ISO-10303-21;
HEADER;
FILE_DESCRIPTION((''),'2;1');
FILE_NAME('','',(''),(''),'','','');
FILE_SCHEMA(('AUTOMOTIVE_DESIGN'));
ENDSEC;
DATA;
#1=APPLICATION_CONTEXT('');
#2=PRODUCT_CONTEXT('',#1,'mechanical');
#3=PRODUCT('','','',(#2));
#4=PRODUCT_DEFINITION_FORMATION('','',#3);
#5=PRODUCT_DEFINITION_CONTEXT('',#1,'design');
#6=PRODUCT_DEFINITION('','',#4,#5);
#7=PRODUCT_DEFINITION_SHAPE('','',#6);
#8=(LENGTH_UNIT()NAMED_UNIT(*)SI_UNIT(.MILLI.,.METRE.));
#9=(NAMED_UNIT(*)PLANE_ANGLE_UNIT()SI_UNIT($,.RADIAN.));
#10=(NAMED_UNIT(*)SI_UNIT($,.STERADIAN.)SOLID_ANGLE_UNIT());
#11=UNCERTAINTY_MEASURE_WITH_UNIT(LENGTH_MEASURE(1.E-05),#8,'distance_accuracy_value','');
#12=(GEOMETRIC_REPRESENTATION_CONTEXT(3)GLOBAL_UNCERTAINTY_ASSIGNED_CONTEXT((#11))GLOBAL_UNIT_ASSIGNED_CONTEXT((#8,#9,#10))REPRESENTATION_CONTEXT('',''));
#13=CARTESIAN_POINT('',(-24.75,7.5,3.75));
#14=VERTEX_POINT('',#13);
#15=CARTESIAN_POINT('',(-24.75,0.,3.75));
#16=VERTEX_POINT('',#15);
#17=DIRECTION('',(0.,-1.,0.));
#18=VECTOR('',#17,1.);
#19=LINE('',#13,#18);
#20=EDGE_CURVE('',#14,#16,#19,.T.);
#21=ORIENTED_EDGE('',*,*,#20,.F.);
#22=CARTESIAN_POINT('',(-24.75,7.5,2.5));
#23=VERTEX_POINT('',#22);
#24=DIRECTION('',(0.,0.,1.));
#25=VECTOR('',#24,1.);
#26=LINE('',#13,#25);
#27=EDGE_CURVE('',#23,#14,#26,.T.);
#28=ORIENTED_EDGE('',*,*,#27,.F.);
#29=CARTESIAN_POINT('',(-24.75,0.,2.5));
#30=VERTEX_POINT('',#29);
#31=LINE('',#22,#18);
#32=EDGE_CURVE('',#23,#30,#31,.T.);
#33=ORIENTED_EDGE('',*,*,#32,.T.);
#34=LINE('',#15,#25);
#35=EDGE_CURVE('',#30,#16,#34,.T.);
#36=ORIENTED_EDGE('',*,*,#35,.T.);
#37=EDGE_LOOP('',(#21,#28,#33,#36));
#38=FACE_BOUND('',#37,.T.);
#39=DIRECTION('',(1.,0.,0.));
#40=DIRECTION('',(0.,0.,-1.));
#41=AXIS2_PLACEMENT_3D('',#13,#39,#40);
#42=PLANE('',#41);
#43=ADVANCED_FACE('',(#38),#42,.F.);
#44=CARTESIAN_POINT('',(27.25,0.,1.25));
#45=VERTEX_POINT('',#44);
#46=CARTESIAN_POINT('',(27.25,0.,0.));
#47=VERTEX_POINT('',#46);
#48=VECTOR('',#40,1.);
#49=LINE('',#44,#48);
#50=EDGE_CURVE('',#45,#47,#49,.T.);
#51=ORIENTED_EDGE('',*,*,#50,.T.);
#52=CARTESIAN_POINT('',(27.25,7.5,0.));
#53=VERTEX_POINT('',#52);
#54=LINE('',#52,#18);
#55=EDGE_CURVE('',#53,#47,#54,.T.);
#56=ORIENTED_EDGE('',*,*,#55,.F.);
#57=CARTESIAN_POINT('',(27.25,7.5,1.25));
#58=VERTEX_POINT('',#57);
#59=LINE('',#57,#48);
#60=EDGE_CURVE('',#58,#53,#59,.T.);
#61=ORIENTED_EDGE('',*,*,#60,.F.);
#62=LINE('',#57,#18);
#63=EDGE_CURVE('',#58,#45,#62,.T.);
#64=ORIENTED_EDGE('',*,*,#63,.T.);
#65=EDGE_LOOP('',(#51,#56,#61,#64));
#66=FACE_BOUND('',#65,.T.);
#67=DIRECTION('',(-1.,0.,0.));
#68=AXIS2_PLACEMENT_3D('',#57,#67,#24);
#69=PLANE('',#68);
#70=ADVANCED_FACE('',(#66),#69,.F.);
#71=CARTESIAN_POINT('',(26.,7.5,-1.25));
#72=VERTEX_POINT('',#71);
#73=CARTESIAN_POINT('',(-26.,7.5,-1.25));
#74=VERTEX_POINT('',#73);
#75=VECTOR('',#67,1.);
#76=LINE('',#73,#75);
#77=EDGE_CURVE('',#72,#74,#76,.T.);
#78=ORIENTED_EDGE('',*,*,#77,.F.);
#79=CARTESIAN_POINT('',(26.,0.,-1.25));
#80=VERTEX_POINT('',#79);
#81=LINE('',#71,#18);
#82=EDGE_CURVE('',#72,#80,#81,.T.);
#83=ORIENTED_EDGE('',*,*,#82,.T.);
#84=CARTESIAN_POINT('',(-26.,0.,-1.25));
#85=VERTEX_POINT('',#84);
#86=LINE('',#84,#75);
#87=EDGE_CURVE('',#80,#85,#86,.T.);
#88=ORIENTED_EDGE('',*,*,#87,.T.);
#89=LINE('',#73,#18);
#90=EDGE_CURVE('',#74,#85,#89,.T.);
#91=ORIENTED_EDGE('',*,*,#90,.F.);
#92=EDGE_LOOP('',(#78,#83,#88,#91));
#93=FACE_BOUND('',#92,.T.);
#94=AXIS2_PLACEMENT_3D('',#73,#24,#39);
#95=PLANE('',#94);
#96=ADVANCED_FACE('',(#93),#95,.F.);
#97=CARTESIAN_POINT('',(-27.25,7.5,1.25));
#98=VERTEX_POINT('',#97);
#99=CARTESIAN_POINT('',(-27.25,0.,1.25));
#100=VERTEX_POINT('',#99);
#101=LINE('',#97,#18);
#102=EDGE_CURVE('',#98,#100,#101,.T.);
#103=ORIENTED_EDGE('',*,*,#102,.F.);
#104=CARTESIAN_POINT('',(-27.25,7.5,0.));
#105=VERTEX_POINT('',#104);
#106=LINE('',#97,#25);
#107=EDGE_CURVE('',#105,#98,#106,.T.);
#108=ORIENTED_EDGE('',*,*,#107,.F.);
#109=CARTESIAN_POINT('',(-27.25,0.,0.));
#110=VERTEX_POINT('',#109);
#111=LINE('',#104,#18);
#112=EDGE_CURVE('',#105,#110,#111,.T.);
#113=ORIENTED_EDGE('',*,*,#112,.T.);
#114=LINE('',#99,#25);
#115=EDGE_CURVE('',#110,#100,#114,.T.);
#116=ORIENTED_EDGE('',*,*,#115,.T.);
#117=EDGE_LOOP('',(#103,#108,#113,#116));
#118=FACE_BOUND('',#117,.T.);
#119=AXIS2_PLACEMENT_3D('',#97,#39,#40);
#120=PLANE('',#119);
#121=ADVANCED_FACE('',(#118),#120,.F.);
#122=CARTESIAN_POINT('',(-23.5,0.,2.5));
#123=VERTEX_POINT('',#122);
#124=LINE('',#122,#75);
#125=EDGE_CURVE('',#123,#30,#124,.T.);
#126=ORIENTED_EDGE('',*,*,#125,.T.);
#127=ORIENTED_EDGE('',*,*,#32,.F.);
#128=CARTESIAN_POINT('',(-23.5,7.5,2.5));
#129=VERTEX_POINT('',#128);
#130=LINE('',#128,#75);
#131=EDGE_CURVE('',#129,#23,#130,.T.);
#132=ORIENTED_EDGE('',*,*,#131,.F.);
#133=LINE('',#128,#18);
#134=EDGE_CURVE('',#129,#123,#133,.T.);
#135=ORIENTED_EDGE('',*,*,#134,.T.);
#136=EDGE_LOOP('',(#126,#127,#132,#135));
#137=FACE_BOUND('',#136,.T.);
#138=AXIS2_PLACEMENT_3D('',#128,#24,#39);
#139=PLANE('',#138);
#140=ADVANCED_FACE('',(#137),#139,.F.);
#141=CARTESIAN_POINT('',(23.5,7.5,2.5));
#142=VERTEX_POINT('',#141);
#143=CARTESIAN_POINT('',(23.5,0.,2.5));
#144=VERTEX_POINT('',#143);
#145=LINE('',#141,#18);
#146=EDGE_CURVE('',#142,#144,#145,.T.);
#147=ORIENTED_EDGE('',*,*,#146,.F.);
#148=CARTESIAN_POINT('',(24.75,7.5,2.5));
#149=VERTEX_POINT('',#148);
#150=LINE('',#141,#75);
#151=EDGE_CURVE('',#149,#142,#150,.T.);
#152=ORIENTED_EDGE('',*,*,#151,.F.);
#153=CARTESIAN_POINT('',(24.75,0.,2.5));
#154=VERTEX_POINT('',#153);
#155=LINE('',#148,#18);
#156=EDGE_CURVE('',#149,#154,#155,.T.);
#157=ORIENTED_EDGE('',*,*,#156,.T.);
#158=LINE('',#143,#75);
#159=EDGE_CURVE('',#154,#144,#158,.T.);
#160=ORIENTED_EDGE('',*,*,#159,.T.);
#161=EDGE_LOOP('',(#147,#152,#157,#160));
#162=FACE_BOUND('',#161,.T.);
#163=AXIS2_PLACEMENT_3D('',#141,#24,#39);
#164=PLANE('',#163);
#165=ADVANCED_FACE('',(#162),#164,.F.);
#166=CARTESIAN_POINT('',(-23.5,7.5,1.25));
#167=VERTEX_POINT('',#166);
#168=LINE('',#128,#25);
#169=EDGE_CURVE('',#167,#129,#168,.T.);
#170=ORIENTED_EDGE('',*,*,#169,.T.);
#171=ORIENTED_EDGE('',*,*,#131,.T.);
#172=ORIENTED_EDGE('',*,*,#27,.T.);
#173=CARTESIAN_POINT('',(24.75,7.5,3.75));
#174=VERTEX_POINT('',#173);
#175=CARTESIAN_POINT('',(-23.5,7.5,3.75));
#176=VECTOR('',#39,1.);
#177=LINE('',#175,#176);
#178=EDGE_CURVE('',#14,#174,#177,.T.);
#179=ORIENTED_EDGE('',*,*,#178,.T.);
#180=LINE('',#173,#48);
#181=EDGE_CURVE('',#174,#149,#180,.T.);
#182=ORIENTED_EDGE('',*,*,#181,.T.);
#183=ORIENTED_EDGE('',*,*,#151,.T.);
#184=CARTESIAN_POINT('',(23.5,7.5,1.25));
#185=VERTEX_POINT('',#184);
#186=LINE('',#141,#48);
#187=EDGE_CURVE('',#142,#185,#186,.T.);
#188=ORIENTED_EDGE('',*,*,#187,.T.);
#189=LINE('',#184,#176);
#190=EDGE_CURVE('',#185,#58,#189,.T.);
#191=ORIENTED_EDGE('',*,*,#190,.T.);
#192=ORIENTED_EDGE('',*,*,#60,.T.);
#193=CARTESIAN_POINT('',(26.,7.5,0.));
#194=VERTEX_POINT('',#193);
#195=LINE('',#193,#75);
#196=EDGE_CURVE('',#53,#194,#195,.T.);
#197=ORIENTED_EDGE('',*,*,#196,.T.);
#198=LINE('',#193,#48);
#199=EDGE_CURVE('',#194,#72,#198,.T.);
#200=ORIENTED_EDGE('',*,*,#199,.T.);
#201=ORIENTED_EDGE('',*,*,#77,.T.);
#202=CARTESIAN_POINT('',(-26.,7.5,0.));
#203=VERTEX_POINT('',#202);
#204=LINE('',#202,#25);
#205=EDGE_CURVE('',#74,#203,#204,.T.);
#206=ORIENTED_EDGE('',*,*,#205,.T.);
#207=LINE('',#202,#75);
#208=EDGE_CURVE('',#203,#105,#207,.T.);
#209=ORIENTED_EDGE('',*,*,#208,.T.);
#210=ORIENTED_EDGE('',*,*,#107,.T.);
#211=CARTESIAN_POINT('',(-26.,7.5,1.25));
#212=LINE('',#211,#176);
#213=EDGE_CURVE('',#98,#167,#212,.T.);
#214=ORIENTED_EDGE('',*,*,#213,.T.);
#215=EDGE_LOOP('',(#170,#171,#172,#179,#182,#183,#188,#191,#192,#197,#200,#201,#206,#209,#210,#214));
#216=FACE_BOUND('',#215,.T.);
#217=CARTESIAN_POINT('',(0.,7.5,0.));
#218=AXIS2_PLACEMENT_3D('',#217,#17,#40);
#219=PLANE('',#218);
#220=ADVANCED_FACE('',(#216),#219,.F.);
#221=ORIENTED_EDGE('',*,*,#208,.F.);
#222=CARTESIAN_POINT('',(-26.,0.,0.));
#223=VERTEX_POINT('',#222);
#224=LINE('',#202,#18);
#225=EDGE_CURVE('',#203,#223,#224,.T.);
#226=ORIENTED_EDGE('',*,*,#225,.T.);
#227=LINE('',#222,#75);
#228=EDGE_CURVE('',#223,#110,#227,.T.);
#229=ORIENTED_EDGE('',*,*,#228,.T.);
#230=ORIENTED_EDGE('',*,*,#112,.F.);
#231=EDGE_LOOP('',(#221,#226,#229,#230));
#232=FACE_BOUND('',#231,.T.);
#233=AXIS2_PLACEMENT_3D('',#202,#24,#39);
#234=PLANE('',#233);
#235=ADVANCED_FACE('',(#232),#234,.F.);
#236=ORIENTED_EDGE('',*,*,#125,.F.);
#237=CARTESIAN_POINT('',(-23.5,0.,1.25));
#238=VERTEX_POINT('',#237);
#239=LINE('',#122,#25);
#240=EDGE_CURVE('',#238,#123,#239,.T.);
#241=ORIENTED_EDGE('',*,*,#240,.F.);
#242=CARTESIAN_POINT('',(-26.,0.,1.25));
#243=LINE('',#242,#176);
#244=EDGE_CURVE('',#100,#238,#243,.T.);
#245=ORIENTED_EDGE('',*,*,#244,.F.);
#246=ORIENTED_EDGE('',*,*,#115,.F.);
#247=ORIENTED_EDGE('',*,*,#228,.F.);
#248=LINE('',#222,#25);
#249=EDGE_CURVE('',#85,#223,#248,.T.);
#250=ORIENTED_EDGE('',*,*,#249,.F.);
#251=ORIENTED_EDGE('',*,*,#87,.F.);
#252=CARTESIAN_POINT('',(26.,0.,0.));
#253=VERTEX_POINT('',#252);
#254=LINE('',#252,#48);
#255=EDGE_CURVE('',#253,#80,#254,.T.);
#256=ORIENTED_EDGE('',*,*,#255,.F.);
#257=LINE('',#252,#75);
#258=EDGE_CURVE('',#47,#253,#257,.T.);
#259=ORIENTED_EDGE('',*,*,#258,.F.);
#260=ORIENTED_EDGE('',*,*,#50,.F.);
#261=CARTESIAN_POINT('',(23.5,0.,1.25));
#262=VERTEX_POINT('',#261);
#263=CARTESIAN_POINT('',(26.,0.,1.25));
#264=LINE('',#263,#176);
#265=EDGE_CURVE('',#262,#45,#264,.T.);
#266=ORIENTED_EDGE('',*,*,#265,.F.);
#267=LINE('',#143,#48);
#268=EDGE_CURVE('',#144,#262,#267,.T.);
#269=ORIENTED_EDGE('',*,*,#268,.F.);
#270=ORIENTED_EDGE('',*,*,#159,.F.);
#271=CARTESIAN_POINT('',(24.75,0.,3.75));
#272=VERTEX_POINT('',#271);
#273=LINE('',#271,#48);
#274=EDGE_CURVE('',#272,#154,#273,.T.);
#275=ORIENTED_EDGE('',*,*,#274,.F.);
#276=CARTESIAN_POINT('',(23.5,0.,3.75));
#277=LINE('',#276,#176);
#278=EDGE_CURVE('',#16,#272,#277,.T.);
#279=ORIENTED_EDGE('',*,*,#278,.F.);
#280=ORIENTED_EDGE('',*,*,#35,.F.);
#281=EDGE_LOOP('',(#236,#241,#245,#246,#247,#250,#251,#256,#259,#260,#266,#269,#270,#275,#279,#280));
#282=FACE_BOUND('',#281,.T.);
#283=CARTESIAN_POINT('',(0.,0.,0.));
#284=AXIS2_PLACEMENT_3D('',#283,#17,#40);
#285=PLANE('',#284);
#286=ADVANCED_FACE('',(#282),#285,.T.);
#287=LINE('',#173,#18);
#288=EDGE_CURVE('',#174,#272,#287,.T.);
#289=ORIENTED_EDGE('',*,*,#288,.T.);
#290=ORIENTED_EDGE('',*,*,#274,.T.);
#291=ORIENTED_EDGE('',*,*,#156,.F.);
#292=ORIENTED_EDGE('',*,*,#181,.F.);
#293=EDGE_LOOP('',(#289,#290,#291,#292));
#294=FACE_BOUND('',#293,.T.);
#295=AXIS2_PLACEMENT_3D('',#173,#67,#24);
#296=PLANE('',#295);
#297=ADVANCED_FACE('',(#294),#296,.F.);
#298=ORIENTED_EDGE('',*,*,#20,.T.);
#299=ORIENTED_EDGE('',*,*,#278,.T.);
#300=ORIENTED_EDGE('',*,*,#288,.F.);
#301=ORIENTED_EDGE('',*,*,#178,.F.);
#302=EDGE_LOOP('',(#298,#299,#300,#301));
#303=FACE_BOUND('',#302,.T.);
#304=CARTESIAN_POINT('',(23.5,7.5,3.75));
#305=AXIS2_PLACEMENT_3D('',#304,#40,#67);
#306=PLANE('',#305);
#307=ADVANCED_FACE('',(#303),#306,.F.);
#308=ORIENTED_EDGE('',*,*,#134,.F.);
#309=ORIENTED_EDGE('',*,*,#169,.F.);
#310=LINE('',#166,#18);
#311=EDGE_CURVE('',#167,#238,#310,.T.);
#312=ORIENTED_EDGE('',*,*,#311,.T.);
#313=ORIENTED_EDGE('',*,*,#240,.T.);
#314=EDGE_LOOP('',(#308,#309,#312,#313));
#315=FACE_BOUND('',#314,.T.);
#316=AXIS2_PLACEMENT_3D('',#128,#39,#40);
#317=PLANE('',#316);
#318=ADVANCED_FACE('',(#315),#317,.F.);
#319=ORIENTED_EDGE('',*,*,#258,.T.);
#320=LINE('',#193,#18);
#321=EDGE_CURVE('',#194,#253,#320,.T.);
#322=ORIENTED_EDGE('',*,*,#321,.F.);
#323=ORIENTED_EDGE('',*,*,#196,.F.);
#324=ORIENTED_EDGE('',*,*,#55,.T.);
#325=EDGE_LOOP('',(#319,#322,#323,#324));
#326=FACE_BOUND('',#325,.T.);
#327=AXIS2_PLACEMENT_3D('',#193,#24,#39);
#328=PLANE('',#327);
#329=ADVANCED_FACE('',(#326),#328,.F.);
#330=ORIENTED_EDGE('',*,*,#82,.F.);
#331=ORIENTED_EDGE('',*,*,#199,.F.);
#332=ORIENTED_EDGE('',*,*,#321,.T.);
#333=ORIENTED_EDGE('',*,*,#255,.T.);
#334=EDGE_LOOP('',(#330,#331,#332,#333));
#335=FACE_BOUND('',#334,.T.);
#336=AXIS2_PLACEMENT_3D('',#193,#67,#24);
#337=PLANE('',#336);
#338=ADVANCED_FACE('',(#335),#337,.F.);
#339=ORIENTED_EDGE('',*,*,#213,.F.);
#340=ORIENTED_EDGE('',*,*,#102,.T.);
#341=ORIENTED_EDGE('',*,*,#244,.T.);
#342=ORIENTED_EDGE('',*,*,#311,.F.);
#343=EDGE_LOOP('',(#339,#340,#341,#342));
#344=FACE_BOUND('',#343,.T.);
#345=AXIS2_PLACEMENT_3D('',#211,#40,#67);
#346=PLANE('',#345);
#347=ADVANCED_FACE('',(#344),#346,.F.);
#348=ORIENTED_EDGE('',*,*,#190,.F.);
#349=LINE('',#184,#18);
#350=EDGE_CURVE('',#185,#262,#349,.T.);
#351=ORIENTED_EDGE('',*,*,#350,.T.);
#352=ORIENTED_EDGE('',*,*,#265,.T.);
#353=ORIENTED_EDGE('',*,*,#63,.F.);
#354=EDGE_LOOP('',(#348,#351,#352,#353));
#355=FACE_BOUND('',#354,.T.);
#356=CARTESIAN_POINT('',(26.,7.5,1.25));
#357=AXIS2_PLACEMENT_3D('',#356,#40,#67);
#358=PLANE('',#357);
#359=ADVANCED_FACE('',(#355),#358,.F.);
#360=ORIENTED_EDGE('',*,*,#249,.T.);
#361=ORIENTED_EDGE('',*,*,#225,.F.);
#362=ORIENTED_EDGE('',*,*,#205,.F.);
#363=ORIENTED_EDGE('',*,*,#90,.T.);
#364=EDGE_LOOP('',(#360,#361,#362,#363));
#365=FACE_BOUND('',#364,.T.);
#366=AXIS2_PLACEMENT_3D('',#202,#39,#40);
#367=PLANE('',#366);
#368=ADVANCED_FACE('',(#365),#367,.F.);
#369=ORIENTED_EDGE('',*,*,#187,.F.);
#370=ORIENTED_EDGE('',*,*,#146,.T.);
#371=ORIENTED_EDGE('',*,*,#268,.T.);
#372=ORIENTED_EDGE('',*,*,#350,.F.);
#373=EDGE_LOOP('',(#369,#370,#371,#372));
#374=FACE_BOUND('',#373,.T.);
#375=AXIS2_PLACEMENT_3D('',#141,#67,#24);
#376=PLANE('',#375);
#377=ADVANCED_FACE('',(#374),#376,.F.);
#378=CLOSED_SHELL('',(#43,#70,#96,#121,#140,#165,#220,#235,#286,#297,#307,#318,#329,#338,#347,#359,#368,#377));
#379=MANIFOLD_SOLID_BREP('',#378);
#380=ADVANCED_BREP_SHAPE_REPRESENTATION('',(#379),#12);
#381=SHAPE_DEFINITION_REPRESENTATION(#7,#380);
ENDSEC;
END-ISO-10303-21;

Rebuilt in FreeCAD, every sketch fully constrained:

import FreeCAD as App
import Part
import Sketcher

V = App.Vector


def add_polygon(sketch, points):
    """Adds a closed chain of lines whose ends are joined by coincident constraints."""
    first, n = sketch.GeometryCount, len(points)
    for a, b in zip(points, points[1:] + points[:1]):
        sketch.addGeometry(Part.LineSegment(App.Vector(*a, 0), App.Vector(*b, 0)), False)
    for i in range(n):
        sketch.addConstraint(Sketcher.Constraint("Coincident", first + i, 2, first + (i + 1) % n, 1))

doc = App.newDocument("Part")
body = doc.addObject("PartDesign::Body", "Body")

# Sketch on XZ plane
sketch1 = body.newObject("Sketcher::SketchObject", "Sketch")
sketch1.AttachmentSupport = (doc.getObject("XZ_Plane"), [""])
sketch1.MapMode = "FlatFace"
add_polygon(sketch1, [(-23.5, 1.2), (-23.5, 2.5), (-24.8, 2.5), (-24.8, 3.8), (24.8, 3.8), (24.8, 2.5), (23.5, 2.5), (23.5, 1.2), (27.2, 1.2), (27.2, 0), (26, 0), (26, -1.2), (-26, -1.2), (-26, 0), (-27.2, 0), (-27.2, 1.2)])  # lines 0-15
sketch1.addConstraint([
    Sketcher.Constraint("Vertical", 0),
    Sketcher.Constraint("Horizontal", 1),
    Sketcher.Constraint("Vertical", 2),
    Sketcher.Constraint("Horizontal", 3),
    Sketcher.Constraint("Vertical", 4),
    Sketcher.Constraint("Horizontal", 5),
    Sketcher.Constraint("Vertical", 6),
    Sketcher.Constraint("Horizontal", 7),
    Sketcher.Constraint("Vertical", 8),
    Sketcher.Constraint("Horizontal", 9),
    Sketcher.Constraint("Vertical", 10),
    Sketcher.Constraint("Horizontal", 11),
    Sketcher.Constraint("Vertical", 12),
    Sketcher.Constraint("Horizontal", 13),
    Sketcher.Constraint("Vertical", 14),
    Sketcher.Constraint("Horizontal", 15),
    Sketcher.Constraint("Symmetric", 9, 2, 12, 2, -1, 1),
    Sketcher.Constraint("Symmetric", 1, 2, 4, 2, -2),
    Sketcher.Constraint("Symmetric", 8, 2, 13, 2, -2),
    Sketcher.Constraint("Symmetric", 6, 2, 15, 2, -2),
    Sketcher.Constraint("Equal", 5, 9),
    Sketcher.Constraint("Equal", 13, 0),
    Sketcher.Constraint("Equal", 0, 2),
    Sketcher.Constraint("Equal", 6, 8),
    Sketcher.Constraint("Equal", 8, 10),
    Sketcher.Constraint("DistanceX", 11, 2, 11, 1, 52.0),
    Sketcher.Constraint("DistanceX", 3, 1, 3, 2, 49.5),
    Sketcher.Constraint("DistanceX", 0, 2, 5, 2, 47.0),
])
pad1 = body.newObject("PartDesign::Pad", "Pad")
pad1.Profile = sketch1
pad1.Length = 7.5
pad1.Reversed = True

doc.recompute()
